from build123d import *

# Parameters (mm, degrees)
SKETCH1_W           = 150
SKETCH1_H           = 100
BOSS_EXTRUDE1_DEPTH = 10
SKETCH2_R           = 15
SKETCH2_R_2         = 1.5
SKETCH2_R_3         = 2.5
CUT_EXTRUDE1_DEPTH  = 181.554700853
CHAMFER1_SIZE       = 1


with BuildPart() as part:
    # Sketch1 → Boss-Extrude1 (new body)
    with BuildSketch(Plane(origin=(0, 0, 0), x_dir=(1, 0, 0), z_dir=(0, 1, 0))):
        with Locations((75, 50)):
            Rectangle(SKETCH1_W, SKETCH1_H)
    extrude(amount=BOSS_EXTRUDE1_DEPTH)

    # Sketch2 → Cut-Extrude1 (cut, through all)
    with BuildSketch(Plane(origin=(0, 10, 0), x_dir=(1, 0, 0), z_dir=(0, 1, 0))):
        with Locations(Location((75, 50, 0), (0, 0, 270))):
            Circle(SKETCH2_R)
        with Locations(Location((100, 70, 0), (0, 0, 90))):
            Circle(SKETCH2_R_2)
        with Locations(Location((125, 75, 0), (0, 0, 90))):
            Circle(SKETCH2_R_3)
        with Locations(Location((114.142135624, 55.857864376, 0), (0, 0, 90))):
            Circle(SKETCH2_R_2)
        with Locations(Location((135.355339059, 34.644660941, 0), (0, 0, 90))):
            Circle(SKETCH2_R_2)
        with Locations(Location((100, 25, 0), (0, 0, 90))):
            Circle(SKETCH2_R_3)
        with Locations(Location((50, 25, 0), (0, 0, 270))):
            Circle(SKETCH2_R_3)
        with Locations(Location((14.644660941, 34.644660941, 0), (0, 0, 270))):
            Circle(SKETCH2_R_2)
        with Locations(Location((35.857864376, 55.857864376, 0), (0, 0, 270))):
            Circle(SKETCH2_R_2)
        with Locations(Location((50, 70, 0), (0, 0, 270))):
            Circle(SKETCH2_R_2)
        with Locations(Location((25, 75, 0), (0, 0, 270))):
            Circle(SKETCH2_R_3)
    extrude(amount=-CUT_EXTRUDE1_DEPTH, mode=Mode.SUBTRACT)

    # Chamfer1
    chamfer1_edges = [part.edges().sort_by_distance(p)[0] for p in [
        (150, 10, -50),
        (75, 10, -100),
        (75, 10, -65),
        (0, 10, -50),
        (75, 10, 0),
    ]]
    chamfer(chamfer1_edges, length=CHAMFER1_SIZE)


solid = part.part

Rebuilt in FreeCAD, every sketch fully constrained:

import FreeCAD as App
import Part
import Sketcher

V = App.Vector


def edges_at(feature, points):
    """Names of the edges that pass closest to the given points."""
    edges = feature.Shape.Edges
    near = lambda p: min(range(len(edges)), key=lambda i: edges[i].distToShape(Part.Vertex(*p))[0])
    return sorted({f"Edge{near(p) + 1}" for p in points})


def add_polygon(sketch, points):
    """Adds a closed chain of lines whose ends are joined by coincident constraints."""
    first, n = sketch.GeometryCount, len(points)
    for a, b in zip(points, points[1:] + points[:1]):
        sketch.addGeometry(Part.LineSegment(App.Vector(*a, 0), App.Vector(*b, 0)), False)
    for i in range(n):
        sketch.addConstraint(Sketcher.Constraint("Coincident", first + i, 2, first + (i + 1) % n, 1))

doc = App.newDocument("Part")
body = doc.addObject("PartDesign::Body", "Body")

sketch1 = body.newObject("Sketcher::SketchObject", "Sketch")
sketch1.AttachmentSupport = (doc.getObject("XZ_Plane"), [""])
sketch1.MapMode = "FlatFace"
add_polygon(sketch1, [(0, -100), (0, 0), (150, 0), (150, -100)])
sketch1.addConstraint(Sketcher.Constraint("Vertical", 0))
sketch1.addConstraint(Sketcher.Constraint("Horizontal", 1))
sketch1.addConstraint(Sketcher.Constraint("Vertical", 2))
sketch1.addConstraint(Sketcher.Constraint("Horizontal", 3))
sketch1.addConstraint(Sketcher.Constraint("Coincident", 0, 2, -1, 1))
sketch1.addConstraint(Sketcher.Constraint("DistanceX", 1, 1, 1, 2, 150.0))
sketch1.addConstraint(Sketcher.Constraint("DistanceY", 0, 1, 0, 2, 100.0))
pad1 = body.newObject("PartDesign::Pad", "Pad")
pad1.Profile = sketch1
pad1.Length = 10
pad1.Reversed = True

sketch2 = body.newObject("Sketcher::SketchObject", "Sketch001")
sketch2.AttachmentSupport = (doc.getObject("XZ_Plane"), [""])
sketch2.MapMode = "FlatFace"
sketch2.AttachmentOffset = App.Placement(V(0, 0, -10), App.Rotation())
sketch2.addGeometry(Part.Circle(V(75, -50, 0), V(0, 0, 1), 15), False)
sketch2.addGeometry(Part.Circle(V(100, -70, 0), V(0, 0, 1), 1.5), False)
sketch2.addGeometry(Part.Circle(V(125, -75, 0), V(0, 0, 1), 2.5), False)
sketch2.addGeometry(Part.Circle(V(114.1, -55.9, 0), V(0, 0, 1), 1.5), False)
sketch2.addGeometry(Part.Circle(V(135.4, -34.6, 0), V(0, 0, 1), 1.5), False)
sketch2.addGeometry(Part.Circle(V(100, -25, 0), V(0, 0, 1), 2.5), False)
sketch2.addGeometry(Part.Circle(V(50, -25, 0), V(0, 0, 1), 2.5), False)
sketch2.addGeometry(Part.Circle(V(14.6, -34.6, 0), V(0, 0, 1), 1.5), False)
sketch2.addGeometry(Part.Circle(V(35.9, -55.9, 0), V(0, 0, 1), 1.5), False)
sketch2.addGeometry(Part.Circle(V(50, -70, 0), V(0, 0, 1), 1.5), False)
sketch2.addGeometry(Part.Circle(V(25, -75, 0), V(0, 0, 1), 2.5), False)
sketch2.addConstraint(Sketcher.Constraint("Equal", 1, 3))
sketch2.addConstraint(Sketcher.Constraint("Equal", 3, 4))
sketch2.addConstraint(Sketcher.Constraint("Equal", 2, 5))
sketch2.addConstraint(Sketcher.Constraint("Equal", 5, 6))
sketch2.addConstraint(Sketcher.Constraint("Equal", 4, 7))
sketch2.addConstraint(Sketcher.Constraint("Equal", 7, 8))
sketch2.addConstraint(Sketcher.Constraint("Equal", 8, 9))
sketch2.addConstraint(Sketcher.Constraint("Equal", 6, 10))
sketch2.addConstraint(Sketcher.Constraint("Horizontal", 5, 3, 6, 3))
sketch2.addConstraint(Sketcher.Constraint("Horizontal", 4, 3, 7, 3))
sketch2.addConstraint(Sketcher.Constraint("Horizontal", 3, 3, 8, 3))
sketch2.addConstraint(Sketcher.Constraint("Horizontal", 1, 3, 9, 3))
sketch2.addConstraint(Sketcher.Constraint("Horizontal", 2, 3, 10, 3))
sketch2.addConstraint(Sketcher.Constraint("Vertical", 1, 3, 5, 3))
sketch2.addConstraint(Sketcher.Constraint("Vertical", 6, 3, 9, 3))
sketch2.addConstraint(Sketcher.Constraint("Diameter", 0, 30.0))
sketch2.addConstraint(Sketcher.Constraint("Diameter", 1, 3.0))
sketch2.addConstraint(Sketcher.Constraint("Diameter", 2, 5.0))
sketch2.addConstraint(Sketcher.Constraint("DistanceX", -1, 1, 0, 3, 75.0))
sketch2.addConstraint(Sketcher.Constraint("DistanceY", 0, 3, -1, 1, 50.0))
sketch2.addConstraint(Sketcher.Constraint("DistanceX", -1, 1, 1, 3, 100.0))
sketch2.addConstraint(Sketcher.Constraint("DistanceY", 1, 3, -1, 1, 70.0))
sketch2.addConstraint(Sketcher.Constraint("DistanceX", -1, 1, 2, 3, 125.0))
sketch2.addConstraint(Sketcher.Constraint("DistanceY", 2, 3, -1, 1, 75.0))
sketch2.addConstraint(Sketcher.Constraint("DistanceY", 5, 3, -1, 1, 25.0))
sketch2.addConstraint(Sketcher.Constraint("DistanceX", -1, 1, 6, 3, 50.0))
sketch2.addConstraint(Sketcher.Constraint("DistanceX", -1, 1, 10, 3, 25.0))
sketch2.addConstraint(Sketcher.Constraint("DistanceX", -1, 1, 4, 3, 135.355339))
sketch2.addConstraint(Sketcher.Constraint("DistanceY", 4, 3, -1, 1, 34.644661))
sketch2.addConstraint(Sketcher.Constraint("DistanceX", -1, 1, 7, 3, 14.644661))
sketch2.addConstraint(Sketcher.Constraint("DistanceX", -1, 1, 3, 3, 114.142136))
sketch2.addConstraint(Sketcher.Constraint("DistanceY", 3, 3, -1, 1, 55.857864))
sketch2.addConstraint(Sketcher.Constraint("DistanceX", -1, 1, 8, 3, 35.857864))
pocket1 = body.newObject("PartDesign::Pocket", "Pocket")
pocket1.Profile = sketch2
pocket1.Type = "ThroughAll"
pocket1.Reversed = True
doc.recompute()

chamfer = body.newObject("PartDesign::Chamfer", "Chamfer")
chamfer.Base = (pocket1, edges_at(pocket1, [
    (150, 10, -50),
    (75, 10, -100),
    (75, 10, -65),
    (0, 10, -50),
    (75, 10, 0),
]))
chamfer.Size = 1

doc.recompute()
